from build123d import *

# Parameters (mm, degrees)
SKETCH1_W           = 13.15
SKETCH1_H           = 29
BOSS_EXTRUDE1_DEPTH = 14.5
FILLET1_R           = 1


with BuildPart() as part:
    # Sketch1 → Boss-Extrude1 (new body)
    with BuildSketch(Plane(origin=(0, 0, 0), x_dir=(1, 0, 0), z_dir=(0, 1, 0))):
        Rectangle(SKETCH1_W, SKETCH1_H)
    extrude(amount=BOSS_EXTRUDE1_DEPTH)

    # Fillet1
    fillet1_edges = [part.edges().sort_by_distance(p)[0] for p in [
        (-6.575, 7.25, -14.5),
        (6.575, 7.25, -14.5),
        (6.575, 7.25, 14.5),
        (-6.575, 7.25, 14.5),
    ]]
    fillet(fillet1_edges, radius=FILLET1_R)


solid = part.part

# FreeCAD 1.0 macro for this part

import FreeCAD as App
import Part
import Sketcher
from FreeCAD import Vector
Q = App.Units.Quantity


def edges_at(feature, points):
    """Names of the edges that pass closest to the given points."""
    edges = feature.Shape.Edges
    near = lambda p: min(range(len(edges)), key=lambda i: edges[i].distToShape(Part.Vertex(*p))[0])
    return sorted({f"Edge{near(p) + 1}" for p in points})


def add_polygon(sketch, points):
    """Adds a closed chain of lines whose ends are joined by coincident constraints."""
    first, n = sketch.GeometryCount, len(points)
    for a, b in zip(points, points[1:] + points[:1]):
        sketch.addGeometry(Part.LineSegment(App.Vector(*a, 0), App.Vector(*b, 0)), False)
    for i in range(n):
        sketch.addConstraint(Sketcher.Constraint("Coincident", first + i, 2, first + (i + 1) % n, 1))

doc = App.newDocument("Part")
body = doc.addObject("PartDesign::Body", "Body")

sketch1 = body.newObject("Sketcher::SketchObject", "Sketch")
sketch1.AttachmentSupport = (doc.getObject("XZ_Plane"), [""])
sketch1.MapMode = "FlatFace"
add_polygon(sketch1, [(-7, -14), (-7, 14), (7, 14), (7, -14)])
sketch1.addConstraint(Sketcher.Constraint("Vertical", 0))
sketch1.addConstraint(Sketcher.Constraint("Horizontal", 1))
sketch1.addConstraint(Sketcher.Constraint("Vertical", 2))
sketch1.addConstraint(Sketcher.Constraint("Horizontal", 3))
sketch1.addConstraint(Sketcher.Constraint("Symmetric", 0, 2, 2, 2, -1, 1))
sketch1.addConstraint(Sketcher.Constraint("DistanceY", 0, 1, 0, 2, Q("29 mm")))
sketch1.addConstraint(Sketcher.Constraint("DistanceX", 1, 1, 1, 2, Q("13.15 mm")))
pad1 = body.newObject("PartDesign::Pad", "Pad")
pad1.Profile = sketch1
pad1.Length = 14.5
pad1.Reversed = True
doc.recompute()

fillet = body.newObject("PartDesign::Fillet", "Fillet")
fillet.Base = (pad1, edges_at(pad1, [
    (-6.575, 7.25, -14.5),
    (6.575, 7.25, -14.5),
    (6.575, 7.25, 14.5),
    (-6.575, 7.25, 14.5),
]))
fillet.Radius = 1

doc.recompute()
